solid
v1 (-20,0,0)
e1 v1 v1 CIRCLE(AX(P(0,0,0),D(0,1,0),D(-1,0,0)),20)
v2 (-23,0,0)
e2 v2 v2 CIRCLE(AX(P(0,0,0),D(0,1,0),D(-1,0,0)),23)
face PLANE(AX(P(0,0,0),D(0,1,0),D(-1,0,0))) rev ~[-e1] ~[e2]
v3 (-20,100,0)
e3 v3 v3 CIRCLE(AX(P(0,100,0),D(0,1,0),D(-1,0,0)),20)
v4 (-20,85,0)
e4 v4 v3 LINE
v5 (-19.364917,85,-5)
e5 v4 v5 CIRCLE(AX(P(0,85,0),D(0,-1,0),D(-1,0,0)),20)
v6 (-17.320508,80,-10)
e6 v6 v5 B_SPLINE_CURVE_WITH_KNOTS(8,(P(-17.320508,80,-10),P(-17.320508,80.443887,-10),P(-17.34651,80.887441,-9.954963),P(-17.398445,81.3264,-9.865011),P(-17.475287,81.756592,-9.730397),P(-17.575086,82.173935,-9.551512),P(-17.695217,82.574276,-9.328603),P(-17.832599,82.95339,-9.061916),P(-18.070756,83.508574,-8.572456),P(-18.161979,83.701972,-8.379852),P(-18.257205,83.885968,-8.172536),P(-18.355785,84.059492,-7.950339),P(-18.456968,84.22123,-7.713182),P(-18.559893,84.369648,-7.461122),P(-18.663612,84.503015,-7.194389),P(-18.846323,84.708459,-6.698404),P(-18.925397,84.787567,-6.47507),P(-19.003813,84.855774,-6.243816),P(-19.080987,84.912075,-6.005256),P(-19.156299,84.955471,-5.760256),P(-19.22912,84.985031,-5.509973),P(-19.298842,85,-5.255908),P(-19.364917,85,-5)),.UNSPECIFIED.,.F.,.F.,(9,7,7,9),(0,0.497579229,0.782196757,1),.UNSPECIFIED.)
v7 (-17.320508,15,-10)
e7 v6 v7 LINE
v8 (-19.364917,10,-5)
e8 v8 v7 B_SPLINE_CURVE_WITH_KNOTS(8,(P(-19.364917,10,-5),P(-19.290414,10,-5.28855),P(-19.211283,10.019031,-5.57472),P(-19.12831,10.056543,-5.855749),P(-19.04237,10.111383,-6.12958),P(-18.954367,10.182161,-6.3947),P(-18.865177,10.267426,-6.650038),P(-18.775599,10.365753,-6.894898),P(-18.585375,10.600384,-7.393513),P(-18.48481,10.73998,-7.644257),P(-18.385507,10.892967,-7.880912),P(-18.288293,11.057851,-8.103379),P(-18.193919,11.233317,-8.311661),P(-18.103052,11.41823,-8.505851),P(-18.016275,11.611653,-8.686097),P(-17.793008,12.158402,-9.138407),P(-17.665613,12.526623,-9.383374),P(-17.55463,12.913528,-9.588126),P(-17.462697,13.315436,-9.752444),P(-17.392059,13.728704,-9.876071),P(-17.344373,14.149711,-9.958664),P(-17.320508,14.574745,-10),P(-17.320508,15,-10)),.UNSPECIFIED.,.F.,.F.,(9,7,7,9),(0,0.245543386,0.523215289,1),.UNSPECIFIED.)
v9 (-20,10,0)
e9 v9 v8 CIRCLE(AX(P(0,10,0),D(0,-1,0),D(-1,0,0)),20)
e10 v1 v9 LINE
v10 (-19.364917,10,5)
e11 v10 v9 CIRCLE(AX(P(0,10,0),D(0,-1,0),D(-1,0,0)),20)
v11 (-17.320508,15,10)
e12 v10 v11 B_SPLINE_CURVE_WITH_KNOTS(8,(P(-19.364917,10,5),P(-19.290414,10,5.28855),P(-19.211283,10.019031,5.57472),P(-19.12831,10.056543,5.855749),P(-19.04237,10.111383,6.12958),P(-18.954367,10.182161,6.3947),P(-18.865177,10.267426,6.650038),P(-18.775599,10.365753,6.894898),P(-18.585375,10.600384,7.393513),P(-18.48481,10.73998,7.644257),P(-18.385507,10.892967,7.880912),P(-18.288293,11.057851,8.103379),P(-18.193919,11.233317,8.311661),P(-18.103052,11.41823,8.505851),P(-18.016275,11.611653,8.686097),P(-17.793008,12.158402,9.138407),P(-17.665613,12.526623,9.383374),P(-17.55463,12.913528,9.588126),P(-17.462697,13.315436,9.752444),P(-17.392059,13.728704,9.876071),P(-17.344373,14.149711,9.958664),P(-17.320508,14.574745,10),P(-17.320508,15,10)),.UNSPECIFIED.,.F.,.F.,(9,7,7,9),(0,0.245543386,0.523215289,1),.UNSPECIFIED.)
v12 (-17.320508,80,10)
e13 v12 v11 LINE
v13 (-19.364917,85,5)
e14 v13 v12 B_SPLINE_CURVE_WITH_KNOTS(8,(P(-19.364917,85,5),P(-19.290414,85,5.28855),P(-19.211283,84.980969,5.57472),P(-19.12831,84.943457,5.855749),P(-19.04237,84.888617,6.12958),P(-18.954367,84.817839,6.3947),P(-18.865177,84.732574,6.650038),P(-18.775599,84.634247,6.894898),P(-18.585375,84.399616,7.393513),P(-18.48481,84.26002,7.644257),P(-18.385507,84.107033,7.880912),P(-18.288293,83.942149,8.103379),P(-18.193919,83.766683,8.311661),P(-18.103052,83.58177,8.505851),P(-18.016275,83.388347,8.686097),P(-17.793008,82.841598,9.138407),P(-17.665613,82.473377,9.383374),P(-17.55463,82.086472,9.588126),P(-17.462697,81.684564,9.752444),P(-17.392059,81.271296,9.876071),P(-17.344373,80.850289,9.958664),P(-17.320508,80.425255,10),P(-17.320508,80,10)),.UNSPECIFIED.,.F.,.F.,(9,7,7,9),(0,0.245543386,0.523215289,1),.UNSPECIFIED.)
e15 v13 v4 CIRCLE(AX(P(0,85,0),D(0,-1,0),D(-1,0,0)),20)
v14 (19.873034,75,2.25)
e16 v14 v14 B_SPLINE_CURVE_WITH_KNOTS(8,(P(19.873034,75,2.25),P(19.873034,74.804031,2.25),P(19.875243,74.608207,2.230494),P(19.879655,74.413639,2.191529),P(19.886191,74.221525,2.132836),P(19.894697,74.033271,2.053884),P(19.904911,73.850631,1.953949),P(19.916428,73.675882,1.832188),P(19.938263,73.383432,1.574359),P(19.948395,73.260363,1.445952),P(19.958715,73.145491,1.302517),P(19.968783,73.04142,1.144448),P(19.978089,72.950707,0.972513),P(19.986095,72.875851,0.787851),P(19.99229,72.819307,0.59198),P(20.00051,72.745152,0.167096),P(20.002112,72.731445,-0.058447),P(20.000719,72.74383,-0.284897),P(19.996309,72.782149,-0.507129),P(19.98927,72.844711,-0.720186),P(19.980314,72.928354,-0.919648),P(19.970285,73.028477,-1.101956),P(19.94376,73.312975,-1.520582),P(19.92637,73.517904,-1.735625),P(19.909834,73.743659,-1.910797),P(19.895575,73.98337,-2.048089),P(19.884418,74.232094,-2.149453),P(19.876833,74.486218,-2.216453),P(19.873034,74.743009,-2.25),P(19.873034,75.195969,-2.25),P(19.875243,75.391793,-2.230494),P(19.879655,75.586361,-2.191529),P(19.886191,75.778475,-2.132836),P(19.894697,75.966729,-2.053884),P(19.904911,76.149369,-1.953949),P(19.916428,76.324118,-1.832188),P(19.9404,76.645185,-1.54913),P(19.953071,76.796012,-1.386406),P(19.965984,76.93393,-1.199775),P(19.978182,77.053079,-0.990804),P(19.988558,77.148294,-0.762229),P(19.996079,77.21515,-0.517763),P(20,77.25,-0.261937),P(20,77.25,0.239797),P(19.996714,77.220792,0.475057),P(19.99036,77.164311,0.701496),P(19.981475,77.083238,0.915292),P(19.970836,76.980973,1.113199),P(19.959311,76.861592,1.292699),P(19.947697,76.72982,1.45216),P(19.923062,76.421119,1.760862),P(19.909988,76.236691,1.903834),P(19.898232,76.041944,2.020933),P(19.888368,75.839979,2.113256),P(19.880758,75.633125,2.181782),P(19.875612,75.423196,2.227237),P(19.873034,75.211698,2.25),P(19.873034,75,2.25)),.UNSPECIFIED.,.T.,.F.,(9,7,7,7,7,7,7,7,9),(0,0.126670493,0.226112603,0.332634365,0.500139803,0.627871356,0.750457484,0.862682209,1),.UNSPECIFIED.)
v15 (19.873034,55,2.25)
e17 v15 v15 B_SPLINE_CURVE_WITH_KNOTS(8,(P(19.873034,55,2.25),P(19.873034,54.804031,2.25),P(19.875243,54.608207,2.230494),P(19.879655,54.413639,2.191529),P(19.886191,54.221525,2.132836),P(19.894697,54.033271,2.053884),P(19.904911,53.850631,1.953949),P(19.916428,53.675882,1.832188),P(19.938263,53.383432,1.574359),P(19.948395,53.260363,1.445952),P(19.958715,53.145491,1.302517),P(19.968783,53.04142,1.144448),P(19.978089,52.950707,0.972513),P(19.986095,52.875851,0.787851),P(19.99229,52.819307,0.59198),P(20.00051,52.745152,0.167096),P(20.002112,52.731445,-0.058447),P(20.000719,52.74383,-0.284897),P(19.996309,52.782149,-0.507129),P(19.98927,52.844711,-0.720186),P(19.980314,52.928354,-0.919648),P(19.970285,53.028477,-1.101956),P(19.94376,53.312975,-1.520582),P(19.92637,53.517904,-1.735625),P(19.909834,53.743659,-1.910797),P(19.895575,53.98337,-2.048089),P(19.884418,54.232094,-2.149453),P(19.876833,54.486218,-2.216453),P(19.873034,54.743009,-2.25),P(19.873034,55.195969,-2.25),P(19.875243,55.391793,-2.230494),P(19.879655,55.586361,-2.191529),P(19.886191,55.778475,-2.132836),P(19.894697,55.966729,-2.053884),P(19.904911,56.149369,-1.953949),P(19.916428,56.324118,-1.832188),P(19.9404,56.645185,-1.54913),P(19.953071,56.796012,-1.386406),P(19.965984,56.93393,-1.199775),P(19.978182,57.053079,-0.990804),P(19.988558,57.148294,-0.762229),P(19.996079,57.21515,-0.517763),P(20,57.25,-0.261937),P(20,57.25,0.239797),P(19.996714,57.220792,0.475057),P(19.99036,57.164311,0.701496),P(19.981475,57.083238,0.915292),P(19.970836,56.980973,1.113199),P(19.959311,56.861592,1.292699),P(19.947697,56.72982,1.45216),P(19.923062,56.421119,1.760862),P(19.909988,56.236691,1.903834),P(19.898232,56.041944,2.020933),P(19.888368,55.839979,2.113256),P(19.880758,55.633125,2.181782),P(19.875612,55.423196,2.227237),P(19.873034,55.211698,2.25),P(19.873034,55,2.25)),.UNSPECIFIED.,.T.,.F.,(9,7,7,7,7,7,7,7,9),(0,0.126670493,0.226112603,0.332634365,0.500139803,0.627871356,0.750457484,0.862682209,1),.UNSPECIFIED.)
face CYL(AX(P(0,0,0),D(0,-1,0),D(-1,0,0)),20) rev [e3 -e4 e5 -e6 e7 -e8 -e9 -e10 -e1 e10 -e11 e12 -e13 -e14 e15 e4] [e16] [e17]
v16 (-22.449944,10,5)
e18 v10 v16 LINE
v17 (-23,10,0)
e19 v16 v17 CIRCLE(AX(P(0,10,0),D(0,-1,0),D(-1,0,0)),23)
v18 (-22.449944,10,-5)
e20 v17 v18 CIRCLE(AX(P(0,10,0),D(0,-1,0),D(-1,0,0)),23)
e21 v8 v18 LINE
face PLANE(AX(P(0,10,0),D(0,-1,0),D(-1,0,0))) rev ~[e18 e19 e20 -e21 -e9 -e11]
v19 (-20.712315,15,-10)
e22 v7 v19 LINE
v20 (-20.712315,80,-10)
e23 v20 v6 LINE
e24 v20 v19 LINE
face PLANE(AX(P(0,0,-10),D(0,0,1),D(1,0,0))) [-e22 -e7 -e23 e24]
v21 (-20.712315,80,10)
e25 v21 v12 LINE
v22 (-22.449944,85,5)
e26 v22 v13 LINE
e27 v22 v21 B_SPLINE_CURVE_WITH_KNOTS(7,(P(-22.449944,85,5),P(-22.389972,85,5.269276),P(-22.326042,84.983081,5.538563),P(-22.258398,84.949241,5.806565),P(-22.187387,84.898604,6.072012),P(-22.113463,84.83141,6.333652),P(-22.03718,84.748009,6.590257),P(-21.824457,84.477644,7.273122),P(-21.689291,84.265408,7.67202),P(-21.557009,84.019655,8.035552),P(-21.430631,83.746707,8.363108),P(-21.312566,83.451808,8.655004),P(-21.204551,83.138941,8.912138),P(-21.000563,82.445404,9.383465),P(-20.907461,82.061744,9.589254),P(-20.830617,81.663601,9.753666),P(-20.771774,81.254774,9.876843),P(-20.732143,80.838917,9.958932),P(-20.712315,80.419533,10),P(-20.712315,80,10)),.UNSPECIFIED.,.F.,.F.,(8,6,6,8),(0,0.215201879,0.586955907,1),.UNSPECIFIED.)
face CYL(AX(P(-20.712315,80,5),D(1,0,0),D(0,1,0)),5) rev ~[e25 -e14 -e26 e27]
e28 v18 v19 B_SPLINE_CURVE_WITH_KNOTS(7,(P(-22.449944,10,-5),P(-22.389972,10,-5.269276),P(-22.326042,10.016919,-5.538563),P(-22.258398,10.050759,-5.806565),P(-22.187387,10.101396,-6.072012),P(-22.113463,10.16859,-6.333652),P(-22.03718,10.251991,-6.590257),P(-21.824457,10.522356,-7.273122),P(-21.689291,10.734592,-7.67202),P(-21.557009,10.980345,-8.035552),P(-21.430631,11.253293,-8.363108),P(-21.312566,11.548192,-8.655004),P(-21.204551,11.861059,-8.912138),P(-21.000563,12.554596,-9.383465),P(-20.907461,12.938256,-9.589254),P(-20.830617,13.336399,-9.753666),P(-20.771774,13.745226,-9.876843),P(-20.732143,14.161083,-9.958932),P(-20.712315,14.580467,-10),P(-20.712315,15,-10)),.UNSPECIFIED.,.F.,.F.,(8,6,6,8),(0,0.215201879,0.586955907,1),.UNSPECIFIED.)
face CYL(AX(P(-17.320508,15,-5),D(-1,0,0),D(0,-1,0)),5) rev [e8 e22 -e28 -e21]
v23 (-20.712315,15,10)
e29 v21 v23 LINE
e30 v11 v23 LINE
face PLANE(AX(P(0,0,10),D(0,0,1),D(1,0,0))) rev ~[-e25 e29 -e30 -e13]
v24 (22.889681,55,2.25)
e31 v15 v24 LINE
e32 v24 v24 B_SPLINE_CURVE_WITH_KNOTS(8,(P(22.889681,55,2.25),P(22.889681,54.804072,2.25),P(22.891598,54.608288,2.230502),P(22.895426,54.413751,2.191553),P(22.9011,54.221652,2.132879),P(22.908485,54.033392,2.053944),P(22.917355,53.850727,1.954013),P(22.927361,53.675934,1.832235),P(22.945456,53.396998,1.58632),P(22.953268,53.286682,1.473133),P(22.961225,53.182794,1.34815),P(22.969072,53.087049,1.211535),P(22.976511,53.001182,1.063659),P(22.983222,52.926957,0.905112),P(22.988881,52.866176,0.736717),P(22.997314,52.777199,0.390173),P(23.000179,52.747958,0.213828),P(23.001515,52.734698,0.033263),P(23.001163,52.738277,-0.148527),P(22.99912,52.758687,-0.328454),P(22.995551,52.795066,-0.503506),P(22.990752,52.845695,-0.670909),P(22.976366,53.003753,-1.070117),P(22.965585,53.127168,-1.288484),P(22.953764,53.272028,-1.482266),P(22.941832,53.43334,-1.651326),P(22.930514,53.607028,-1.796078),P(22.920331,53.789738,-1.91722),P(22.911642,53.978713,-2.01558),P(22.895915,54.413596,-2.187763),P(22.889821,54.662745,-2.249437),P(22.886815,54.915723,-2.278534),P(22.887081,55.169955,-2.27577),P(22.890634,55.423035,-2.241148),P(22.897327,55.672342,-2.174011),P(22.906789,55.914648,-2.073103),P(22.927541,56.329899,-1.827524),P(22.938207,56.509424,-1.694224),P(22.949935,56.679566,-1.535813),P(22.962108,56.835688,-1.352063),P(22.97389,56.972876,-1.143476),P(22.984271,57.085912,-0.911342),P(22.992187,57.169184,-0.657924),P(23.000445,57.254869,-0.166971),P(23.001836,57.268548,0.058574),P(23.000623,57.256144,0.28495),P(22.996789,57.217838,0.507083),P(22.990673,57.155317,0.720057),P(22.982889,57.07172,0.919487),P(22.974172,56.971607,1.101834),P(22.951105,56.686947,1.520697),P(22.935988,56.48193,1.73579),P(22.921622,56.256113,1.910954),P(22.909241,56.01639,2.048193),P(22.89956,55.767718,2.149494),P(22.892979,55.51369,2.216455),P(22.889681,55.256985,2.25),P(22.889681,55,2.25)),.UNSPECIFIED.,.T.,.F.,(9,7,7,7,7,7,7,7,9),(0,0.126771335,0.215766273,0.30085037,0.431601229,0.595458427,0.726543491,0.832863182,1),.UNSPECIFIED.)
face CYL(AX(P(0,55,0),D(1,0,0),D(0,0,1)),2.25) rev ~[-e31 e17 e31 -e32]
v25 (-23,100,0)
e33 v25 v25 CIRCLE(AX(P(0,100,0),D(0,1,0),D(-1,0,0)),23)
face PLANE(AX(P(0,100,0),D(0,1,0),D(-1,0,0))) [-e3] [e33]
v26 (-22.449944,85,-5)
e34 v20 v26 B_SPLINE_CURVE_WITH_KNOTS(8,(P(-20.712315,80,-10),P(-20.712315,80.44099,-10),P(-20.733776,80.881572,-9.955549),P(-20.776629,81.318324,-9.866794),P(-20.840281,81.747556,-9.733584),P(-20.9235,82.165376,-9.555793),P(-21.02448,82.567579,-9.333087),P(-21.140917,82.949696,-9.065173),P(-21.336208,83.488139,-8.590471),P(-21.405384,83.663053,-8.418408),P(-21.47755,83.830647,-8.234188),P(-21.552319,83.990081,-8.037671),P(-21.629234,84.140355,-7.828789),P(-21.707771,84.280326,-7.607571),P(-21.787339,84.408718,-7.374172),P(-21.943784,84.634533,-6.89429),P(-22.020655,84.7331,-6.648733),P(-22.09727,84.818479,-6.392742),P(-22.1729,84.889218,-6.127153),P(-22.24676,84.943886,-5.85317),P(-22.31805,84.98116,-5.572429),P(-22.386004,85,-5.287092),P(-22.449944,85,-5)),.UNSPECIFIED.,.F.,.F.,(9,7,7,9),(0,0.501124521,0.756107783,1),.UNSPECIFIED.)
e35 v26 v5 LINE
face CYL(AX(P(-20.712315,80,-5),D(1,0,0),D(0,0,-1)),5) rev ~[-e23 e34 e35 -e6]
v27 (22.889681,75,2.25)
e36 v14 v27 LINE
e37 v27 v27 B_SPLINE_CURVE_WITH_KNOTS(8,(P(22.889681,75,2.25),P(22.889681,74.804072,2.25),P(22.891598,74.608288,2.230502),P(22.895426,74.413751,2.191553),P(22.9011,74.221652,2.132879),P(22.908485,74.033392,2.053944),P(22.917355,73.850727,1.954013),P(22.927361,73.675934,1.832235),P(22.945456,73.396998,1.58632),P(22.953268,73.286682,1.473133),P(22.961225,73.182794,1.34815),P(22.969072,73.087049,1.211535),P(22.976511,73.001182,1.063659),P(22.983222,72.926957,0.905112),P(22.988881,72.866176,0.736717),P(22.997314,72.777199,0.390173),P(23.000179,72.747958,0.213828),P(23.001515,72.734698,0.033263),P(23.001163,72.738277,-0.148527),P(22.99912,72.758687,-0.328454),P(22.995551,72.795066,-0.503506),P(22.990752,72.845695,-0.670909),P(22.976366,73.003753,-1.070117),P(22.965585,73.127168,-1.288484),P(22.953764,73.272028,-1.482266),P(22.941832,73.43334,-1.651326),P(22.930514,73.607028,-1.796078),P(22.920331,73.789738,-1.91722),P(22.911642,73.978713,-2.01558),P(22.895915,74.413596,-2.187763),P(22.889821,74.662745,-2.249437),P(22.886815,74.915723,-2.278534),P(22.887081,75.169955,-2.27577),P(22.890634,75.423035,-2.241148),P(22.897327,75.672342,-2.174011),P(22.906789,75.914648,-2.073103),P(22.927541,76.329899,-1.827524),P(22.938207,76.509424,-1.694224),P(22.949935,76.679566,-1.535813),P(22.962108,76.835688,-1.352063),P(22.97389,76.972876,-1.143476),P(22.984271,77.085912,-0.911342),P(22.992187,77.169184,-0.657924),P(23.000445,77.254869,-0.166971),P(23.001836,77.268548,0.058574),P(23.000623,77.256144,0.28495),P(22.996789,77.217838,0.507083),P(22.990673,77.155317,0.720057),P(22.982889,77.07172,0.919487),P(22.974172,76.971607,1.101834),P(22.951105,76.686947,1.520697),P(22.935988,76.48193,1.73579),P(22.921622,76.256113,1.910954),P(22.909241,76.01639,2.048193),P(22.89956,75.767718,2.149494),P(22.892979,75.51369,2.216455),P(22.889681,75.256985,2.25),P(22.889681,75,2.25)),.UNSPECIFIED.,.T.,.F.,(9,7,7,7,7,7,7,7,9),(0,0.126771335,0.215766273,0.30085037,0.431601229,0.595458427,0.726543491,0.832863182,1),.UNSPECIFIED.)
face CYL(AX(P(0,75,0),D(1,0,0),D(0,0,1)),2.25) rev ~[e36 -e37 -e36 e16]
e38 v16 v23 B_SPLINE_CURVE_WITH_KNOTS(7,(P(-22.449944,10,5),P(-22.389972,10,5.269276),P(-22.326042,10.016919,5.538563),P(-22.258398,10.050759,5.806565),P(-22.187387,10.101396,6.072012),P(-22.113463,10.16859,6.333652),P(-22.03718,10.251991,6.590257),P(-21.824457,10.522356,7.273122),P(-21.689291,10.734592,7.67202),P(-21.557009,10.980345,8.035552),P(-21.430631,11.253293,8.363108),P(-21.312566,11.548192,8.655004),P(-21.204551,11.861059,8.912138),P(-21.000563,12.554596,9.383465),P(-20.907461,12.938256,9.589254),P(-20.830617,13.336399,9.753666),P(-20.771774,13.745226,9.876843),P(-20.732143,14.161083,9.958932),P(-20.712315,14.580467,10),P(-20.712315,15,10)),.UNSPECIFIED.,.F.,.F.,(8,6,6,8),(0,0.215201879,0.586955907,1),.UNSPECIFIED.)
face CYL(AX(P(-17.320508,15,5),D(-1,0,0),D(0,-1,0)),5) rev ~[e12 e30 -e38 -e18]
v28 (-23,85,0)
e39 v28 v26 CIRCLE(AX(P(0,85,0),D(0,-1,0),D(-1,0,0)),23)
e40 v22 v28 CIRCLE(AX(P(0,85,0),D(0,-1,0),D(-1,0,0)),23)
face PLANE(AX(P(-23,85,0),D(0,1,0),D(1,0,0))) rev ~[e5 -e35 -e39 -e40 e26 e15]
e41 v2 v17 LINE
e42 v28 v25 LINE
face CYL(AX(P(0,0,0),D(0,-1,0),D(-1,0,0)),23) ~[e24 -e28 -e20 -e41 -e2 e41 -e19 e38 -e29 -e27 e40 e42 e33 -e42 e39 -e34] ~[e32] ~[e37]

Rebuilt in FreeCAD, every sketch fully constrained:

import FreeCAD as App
import Part
import Sketcher
Q = App.Units.Quantity


def edges_at(feature, points):
    """Names of the edges that pass closest to the given points."""
    edges = feature.Shape.Edges
    near = lambda p: min(range(len(edges)), key=lambda i: edges[i].distToShape(Part.Vertex(*p))[0])
    return sorted({f"Edge{near(p) + 1}" for p in points})

doc = App.newDocument("Part")
body = doc.addObject("PartDesign::Body", "Body")

# Sketch on XZ plane
sketch1 = body.newObject("Sketcher::SketchObject", "Sketch")
sketch1.AttachmentSupport = (doc.getObject("XZ_Plane"), [""])
sketch1.MapMode = "FlatFace"
sketch1.addGeometry([
    Part.Circle(App.Vector(0, 0, 0), App.Vector(0, 0, 1), 23),
    Part.Circle(App.Vector(0, 0, 0), App.Vector(0, 0, 1), 20),
], False)
sketch1.addConstraint([
    Sketcher.Constraint("Coincident", 0, 3, -1, 1),
    Sketcher.Constraint("Coincident", 1, 3, -1, 1),
    Sketcher.Constraint("Diameter", 1, Q("40 mm")),
    Sketcher.Constraint("Diameter", 0, Q("46 mm")),
])
pad1 = body.newObject("PartDesign::Pad", "Pad")
pad1.Profile = sketch1
pad1.Length = 100
pad1.Reversed = True

# Sketch on XY plane
sketch2 = body.newObject("Sketcher::SketchObject", "Sketch001")
sketch2.AttachmentSupport = (doc.getObject("XY_Plane"), [""])
sketch2.MapMode = "FlatFace"
sketch2.addGeometry([
    Part.LineSegment(App.Vector(0, 85, 0), App.Vector(-23, 85, 0)),
    Part.LineSegment(App.Vector(-23, 85, 0), App.Vector(-23, 10, 0)),
    Part.LineSegment(App.Vector(-23, 10, 0), App.Vector(0, 10, 0)),
    Part.LineSegment(App.Vector(0, 10, 0), App.Vector(0, 85, 0)),
], False)
sketch2.addConstraint([
    Sketcher.Constraint("Coincident", 0, 2, 1, 1),
    Sketcher.Constraint("Coincident", 1, 2, 2, 1),
    Sketcher.Constraint("Coincident", 2, 2, 3, 1),
    Sketcher.Constraint("Coincident", 3, 2, 0, 1),
    Sketcher.Constraint("Horizontal", 0),
    Sketcher.Constraint("Vertical", 1),
    Sketcher.Constraint("Horizontal", 2),
    Sketcher.Constraint("Vertical", 3),
    Sketcher.Constraint("PointOnObject", 2, 2, -2),
    Sketcher.Constraint("DistanceY", 1, 2, 1, 1, Q("75 mm")),
    Sketcher.Constraint("DistanceY", -1, 1, 1, 2, Q("10 mm")),
    Sketcher.Constraint("DistanceX", 0, 2, 0, 1, Q("23 mm")),
])
pocket1 = body.newObject("PartDesign::Pocket", "Pocket")
pocket1.Profile = sketch2
pocket1.Length = 20
pocket1.Midplane = True
doc.recompute()

fillet = body.newObject("PartDesign::Fillet", "Fillet")
fillet.Base = (pocket1, edges_at(pocket1, [
    (-19.016, 85, -10),
    (-19.016, 85, 10),
    (-19.016, 10, 10),
    (-19.016, 10, -10),
]))
fillet.Radius = 5

# Sketch on YZ plane
sketch3 = body.newObject("Sketcher::SketchObject", "Sketch002")
sketch3.AttachmentSupport = (doc.getObject("YZ_Plane"), [""])
sketch3.MapMode = "FlatFace"
sketch3.addGeometry([
    Part.Circle(App.Vector(75, 0, 0), App.Vector(0, 0, 1), 2.2),
    Part.Circle(App.Vector(55, 0, 0), App.Vector(0, 0, 1), 2.2),
], False)
sketch3.addConstraint([
    Sketcher.Constraint("Equal", 0, 1),
    Sketcher.Constraint("PointOnObject", 0, 3, -1),
    Sketcher.Constraint("PointOnObject", 1, 3, -1),
    Sketcher.Constraint("Diameter", 0, Q("4.5 mm")),
    Sketcher.Constraint("DistanceX", -1, 1, 0, 3, Q("75 mm")),
    Sketcher.Constraint("DistanceX", -1, 1, 1, 3, Q("55 mm")),
])
doc.recompute()
hole = body.newObject("PartDesign::Hole", "Hole")
hole.Profile = sketch3
hole.ThreadType = "None"
hole.Diameter = 4.5
hole.DepthType = "ThroughAll"
hole.Reversed = True

doc.recompute()
